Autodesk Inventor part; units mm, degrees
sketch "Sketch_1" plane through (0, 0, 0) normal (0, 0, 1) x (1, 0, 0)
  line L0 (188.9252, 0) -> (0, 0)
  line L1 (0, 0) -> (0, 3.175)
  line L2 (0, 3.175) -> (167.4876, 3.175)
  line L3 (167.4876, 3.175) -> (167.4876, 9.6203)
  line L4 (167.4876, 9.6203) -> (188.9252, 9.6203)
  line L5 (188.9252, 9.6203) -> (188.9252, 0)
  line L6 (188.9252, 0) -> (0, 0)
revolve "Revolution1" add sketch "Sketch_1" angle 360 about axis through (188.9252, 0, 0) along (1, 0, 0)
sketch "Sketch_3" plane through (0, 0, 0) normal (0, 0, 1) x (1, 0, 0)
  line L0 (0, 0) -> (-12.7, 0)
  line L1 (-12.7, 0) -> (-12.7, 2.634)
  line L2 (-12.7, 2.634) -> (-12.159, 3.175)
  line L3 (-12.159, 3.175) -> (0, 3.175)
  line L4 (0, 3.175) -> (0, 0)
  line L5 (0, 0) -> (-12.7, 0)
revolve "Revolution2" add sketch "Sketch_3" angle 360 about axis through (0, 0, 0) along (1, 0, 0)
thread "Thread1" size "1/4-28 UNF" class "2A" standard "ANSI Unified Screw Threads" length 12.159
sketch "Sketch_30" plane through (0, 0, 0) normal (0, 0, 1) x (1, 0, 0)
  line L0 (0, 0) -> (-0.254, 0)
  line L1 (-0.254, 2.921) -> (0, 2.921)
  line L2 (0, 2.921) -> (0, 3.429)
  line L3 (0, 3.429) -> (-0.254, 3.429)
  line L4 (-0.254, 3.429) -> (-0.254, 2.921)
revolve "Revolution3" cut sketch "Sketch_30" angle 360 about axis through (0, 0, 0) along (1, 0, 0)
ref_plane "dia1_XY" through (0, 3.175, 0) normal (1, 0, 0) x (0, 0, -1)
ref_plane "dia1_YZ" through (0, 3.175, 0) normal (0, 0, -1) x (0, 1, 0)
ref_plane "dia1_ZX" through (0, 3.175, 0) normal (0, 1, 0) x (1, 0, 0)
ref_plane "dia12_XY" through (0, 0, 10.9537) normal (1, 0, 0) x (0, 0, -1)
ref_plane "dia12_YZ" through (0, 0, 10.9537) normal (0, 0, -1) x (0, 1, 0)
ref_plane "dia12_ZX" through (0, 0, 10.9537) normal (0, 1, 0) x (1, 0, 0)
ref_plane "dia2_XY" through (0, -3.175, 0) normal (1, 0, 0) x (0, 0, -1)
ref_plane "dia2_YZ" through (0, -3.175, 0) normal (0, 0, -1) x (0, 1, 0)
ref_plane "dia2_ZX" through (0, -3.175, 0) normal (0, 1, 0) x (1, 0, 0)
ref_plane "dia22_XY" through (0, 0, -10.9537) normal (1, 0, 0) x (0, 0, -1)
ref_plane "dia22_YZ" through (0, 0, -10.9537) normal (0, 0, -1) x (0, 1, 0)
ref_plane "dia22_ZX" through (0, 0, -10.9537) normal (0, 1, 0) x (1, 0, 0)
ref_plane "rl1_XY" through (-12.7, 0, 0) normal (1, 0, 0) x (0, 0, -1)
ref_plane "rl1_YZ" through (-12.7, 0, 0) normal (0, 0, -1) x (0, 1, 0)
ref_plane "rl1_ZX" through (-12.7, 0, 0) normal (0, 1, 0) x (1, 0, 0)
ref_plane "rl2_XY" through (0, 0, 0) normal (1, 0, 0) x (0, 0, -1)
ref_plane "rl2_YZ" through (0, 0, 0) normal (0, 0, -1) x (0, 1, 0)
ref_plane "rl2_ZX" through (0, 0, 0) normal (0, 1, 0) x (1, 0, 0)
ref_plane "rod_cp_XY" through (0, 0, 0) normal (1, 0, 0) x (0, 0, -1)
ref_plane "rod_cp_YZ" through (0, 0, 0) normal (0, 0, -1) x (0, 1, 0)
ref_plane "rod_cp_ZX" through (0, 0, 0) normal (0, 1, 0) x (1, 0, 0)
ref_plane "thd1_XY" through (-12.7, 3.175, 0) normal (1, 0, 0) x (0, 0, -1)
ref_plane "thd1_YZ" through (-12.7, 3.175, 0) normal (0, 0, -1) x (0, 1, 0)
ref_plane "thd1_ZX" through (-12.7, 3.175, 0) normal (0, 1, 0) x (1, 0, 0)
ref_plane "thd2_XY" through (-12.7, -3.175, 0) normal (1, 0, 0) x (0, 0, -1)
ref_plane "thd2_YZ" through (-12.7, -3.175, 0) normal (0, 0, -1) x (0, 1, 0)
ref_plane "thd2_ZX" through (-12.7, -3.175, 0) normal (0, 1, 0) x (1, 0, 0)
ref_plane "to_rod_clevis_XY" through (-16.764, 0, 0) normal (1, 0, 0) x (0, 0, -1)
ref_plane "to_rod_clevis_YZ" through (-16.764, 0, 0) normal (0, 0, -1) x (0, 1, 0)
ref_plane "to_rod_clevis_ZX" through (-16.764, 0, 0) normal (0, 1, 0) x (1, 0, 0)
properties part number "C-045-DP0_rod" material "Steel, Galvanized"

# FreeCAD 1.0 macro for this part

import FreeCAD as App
import Part
import Sketcher
from FreeCAD import Vector
Q = App.Units.Quantity

doc = App.newDocument("Part")
body = doc.addObject("PartDesign::Body", "Body")

sketch1 = body.newObject("Sketcher::SketchObject", "Sketch")
sketch1.AttachmentSupport = (doc.getObject("XY_Plane"), [""])
sketch1.MapMode = "FlatFace"
sketch1.addGeometry([
    Part.LineSegment(Vector(0, 0, 0), Vector(188.9252, 0, 0)),
    Part.LineSegment(Vector(188.9252, 0, 0), Vector(188.9252, 9.6203, 0)),
    Part.LineSegment(Vector(188.9252, 9.6203, 0), Vector(167.4876, 9.6203, 0)),
    Part.LineSegment(Vector(167.4876, 9.6203, 0), Vector(167.4876, 3.175, 0)),
    Part.LineSegment(Vector(167.4876, 3.175, 0), Vector(0, 3.175, 0)),
    Part.LineSegment(Vector(0, 3.175, 0), Vector(0, 0, 0)),
], False)
sketch1.addConstraint([
    Sketcher.Constraint("Coincident", 0, 2, 1, 1),
    Sketcher.Constraint("Coincident", 1, 2, 2, 1),
    Sketcher.Constraint("Coincident", 2, 2, 3, 1),
    Sketcher.Constraint("Coincident", 3, 2, 4, 1),
    Sketcher.Constraint("Coincident", 4, 2, 5, 1),
    Sketcher.Constraint("Coincident", 5, 2, 0, 1),
    Sketcher.Constraint("Horizontal", 0),
    Sketcher.Constraint("Vertical", 1),
    Sketcher.Constraint("Horizontal", 2),
    Sketcher.Constraint("Vertical", 3),
    Sketcher.Constraint("Horizontal", 4),
    Sketcher.Constraint("Vertical", 5),
    Sketcher.Constraint("Coincident", 5, 2, -1, 1),
    Sketcher.Constraint("DistanceX", 0, 1, 0, 2, Q("7.438 in")),
    Sketcher.Constraint("DistanceX", 2, 2, 2, 1, Q("0.844 in")),
    Sketcher.Constraint("DistanceY", 5, 2, 5, 1, Q("0.125 in")),
    Sketcher.Constraint("DistanceY", 1, 1, 1, 2, Q("9.6203 mm")),
])
revolution = body.newObject("PartDesign::Revolution", "Revolution")
revolution.Profile = sketch1
revolution.ReferenceAxis = (sketch1, ["H_Axis"])
revolution.Angle = 360

sketch2 = body.newObject("Sketcher::SketchObject", "Sketch001")
sketch2.AttachmentSupport = (doc.getObject("XY_Plane"), [""])
sketch2.MapMode = "FlatFace"
sketch2.addGeometry([
    Part.LineSegment(Vector(-12.7, 0, 0), Vector(0, 0, 0)),
    Part.LineSegment(Vector(0, 0, 0), Vector(0, 3.175, 0)),
    Part.LineSegment(Vector(0, 3.175, 0), Vector(-12.159, 3.175, 0)),
    Part.LineSegment(Vector(-12.159, 3.175, 0), Vector(-12.7, 2.634, 0)),
    Part.LineSegment(Vector(-12.7, 2.634, 0), Vector(-12.7, 0, 0)),
], False)
sketch2.addConstraint([
    Sketcher.Constraint("Coincident", 0, 2, 1, 1),
    Sketcher.Constraint("Coincident", 1, 2, 2, 1),
    Sketcher.Constraint("Coincident", 2, 2, 3, 1),
    Sketcher.Constraint("Coincident", 3, 2, 4, 1),
    Sketcher.Constraint("Coincident", 4, 2, 0, 1),
    Sketcher.Constraint("Horizontal", 0),
    Sketcher.Constraint("Vertical", 1),
    Sketcher.Constraint("Horizontal", 2),
    Sketcher.Constraint("Vertical", 4),
    Sketcher.Constraint("Coincident", 0, 2, -1, 1),
    Sketcher.Constraint("DistanceX", 0, 1, 0, 2, Q("0.5 in")),
    Sketcher.Constraint("Angle", 3, Q("-135 deg")),
    Sketcher.Constraint("DistanceY", 1, 1, 1, 2, Q("0.125 in")),
    Sketcher.Constraint("DistanceX", 2, 2, 2, 1, Q("0.4787 in")),
])
revolution2 = body.newObject("PartDesign::Revolution", "Revolution001")
revolution2.Profile = sketch2
revolution2.ReferenceAxis = (sketch2, ["H_Axis"])
revolution2.Angle = 360

sketch3 = body.newObject("Sketcher::SketchObject", "Sketch002")
sketch3.AttachmentSupport = (doc.getObject("XY_Plane"), [""])
sketch3.MapMode = "FlatFace"
sketch3.addGeometry([
    Part.LineSegment(Vector(-0.254, 3.429, 0), Vector(-0.254, 2.921, 0)),
    Part.LineSegment(Vector(-0.254, 2.921, 0), Vector(0, 2.921, 0)),
    Part.LineSegment(Vector(0, 2.921, 0), Vector(0, 3.429, 0)),
    Part.LineSegment(Vector(0, 3.429, 0), Vector(-0.254, 3.429, 0)),
], False)
sketch3.addConstraint([
    Sketcher.Constraint("Coincident", 0, 2, 1, 1),
    Sketcher.Constraint("Coincident", 1, 2, 2, 1),
    Sketcher.Constraint("Coincident", 2, 2, 3, 1),
    Sketcher.Constraint("Coincident", 3, 2, 0, 1),
    Sketcher.Constraint("Vertical", 0),
    Sketcher.Constraint("Horizontal", 1),
    Sketcher.Constraint("Vertical", 2),
    Sketcher.Constraint("Horizontal", 3),
    Sketcher.Constraint("PointOnObject", 1, 2, -2),
    Sketcher.Constraint("DistanceX", 1, 1, 1, 2, Q("0.01 in")),
    Sketcher.Constraint("DistanceY", 0, 2, 0, 1, Q("0.02 in")),
    Sketcher.Constraint("DistanceY", -1, 1, 0, 2, Q("0.115 in")),
])
groove = body.newObject("PartDesign::Groove", "Groove")
groove.Profile = sketch3
groove.ReferenceAxis = (sketch3, ["H_Axis"])
groove.Angle = 360

doc.recompute()
